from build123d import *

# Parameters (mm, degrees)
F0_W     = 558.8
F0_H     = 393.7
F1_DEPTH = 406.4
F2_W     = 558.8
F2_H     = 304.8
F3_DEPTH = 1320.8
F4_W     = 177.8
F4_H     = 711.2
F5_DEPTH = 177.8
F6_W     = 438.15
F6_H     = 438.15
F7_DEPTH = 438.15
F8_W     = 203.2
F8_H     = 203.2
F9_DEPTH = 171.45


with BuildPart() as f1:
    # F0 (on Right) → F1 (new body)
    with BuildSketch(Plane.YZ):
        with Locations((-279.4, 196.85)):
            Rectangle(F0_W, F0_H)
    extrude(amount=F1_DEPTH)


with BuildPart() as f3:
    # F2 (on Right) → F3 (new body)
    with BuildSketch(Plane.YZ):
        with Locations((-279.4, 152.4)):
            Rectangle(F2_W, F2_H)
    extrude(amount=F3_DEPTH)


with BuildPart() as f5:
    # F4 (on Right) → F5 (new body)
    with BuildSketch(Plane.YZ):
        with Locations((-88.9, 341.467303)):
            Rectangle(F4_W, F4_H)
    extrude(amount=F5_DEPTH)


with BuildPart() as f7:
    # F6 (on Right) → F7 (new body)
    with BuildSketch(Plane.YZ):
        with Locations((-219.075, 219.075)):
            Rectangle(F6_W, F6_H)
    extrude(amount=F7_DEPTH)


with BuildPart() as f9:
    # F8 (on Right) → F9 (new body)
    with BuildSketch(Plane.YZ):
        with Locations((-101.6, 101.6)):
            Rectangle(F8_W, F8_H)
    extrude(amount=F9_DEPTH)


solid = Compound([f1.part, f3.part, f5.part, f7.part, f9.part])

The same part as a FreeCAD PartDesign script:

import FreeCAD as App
import Part
import Sketcher

V = App.Vector
Q = App.Units.Quantity


def add_polygon(sketch, points):
    """Adds a closed chain of lines whose ends are joined by coincident constraints."""
    first, n = sketch.GeometryCount, len(points)
    for a, b in zip(points, points[1:] + points[:1]):
        sketch.addGeometry(Part.LineSegment(App.Vector(*a, 0), App.Vector(*b, 0)), False)
    for i in range(n):
        sketch.addConstraint(Sketcher.Constraint("Coincident", first + i, 2, first + (i + 1) % n, 1))

doc = App.newDocument("Part")
body = doc.addObject("PartDesign::Body", "Body")

# Sketch on YZ plane
sketch1 = body.newObject("Sketcher::SketchObject", "Sketch")
sketch1.AttachmentSupport = (doc.getObject("YZ_Plane"), [""])
sketch1.MapMode = "FlatFace"
add_polygon(sketch1, [(-558.8, 393.7), (-558.8, 0), (0, 0), (0, 393.7)])  # lines 0-3
sketch1.addConstraint([
    Sketcher.Constraint("Vertical", 0),
    Sketcher.Constraint("Horizontal", 1),
    Sketcher.Constraint("Vertical", 2),
    Sketcher.Constraint("Horizontal", 3),
    Sketcher.Constraint("Coincident", 1, 2, -1, 1),
    Sketcher.Constraint("DistanceX", 1, 1, 1, 2, Q("22 in")),
    Sketcher.Constraint("DistanceY", 0, 2, 0, 1, Q("15.5 in")),
])
pad1 = body.newObject("PartDesign::Pad", "Pad")
pad1.Profile = sketch1
pad1.Length = Q("16 in")
body2 = doc.addObject("PartDesign::Body", "Body001")

# Sketch on YZ plane
sketch2 = body2.newObject("Sketcher::SketchObject", "Sketch001")
sketch2.AttachmentSupport = (doc.getObject("YZ_Plane001"), [""])
sketch2.MapMode = "FlatFace"
add_polygon(sketch2, [(-558.8, 304.8), (-558.8, 0), (0, 0), (0, 304.8)])  # lines 0-3
sketch2.addConstraint([
    Sketcher.Constraint("Vertical", 0),
    Sketcher.Constraint("Horizontal", 1),
    Sketcher.Constraint("Vertical", 2),
    Sketcher.Constraint("Horizontal", 3),
    Sketcher.Constraint("Coincident", 1, 2, -1, 1),
    Sketcher.Constraint("DistanceX", 1, 1, 1, 2, Q("22 in")),
    Sketcher.Constraint("DistanceY", 0, 2, 0, 1, Q("12 in")),
])
pad2 = body2.newObject("PartDesign::Pad", "Pad001")
pad2.Profile = sketch2
pad2.Length = Q("52 in")
body3 = doc.addObject("PartDesign::Body", "Body002")

# Sketch on YZ plane
sketch3 = body3.newObject("Sketcher::SketchObject", "Sketch002")
sketch3.AttachmentSupport = (doc.getObject("YZ_Plane002"), [""])
sketch3.MapMode = "FlatFace"
add_polygon(sketch3, [(-177.8, 697.067303), (-177.8, -14.132697), (0, -14.132697), (0, 697.067303)])  # lines 0-3
sketch3.addConstraint([
    Sketcher.Constraint("Vertical", 0),
    Sketcher.Constraint("Horizontal", 1),
    Sketcher.Constraint("Vertical", 2),
    Sketcher.Constraint("Horizontal", 3),
    Sketcher.Constraint("PointOnObject", 1, 2, -2),
    Sketcher.Constraint("DistanceX", 1, 1, 1, 2, Q("7 in")),
    Sketcher.Constraint("DistanceY", 0, 2, 0, 1, Q("28 in")),
    Sketcher.Constraint("DistanceY", 0, 2, -1, 1, Q("14.132697 mm")),
])
pad3 = body3.newObject("PartDesign::Pad", "Pad002")
pad3.Profile = sketch3
pad3.Length = Q("7 in")
body4 = doc.addObject("PartDesign::Body", "Body003")

# Sketch on YZ plane
sketch4 = body4.newObject("Sketcher::SketchObject", "Sketch003")
sketch4.AttachmentSupport = (doc.getObject("YZ_Plane003"), [""])
sketch4.MapMode = "FlatFace"
add_polygon(sketch4, [(-438.15, 438.15), (-438.15, 0), (0, 0), (0, 438.15)])  # lines 0-3
sketch4.addConstraint([
    Sketcher.Constraint("Vertical", 0),
    Sketcher.Constraint("Horizontal", 1),
    Sketcher.Constraint("Vertical", 2),
    Sketcher.Constraint("Horizontal", 3),
    Sketcher.Constraint("Coincident", 1, 2, -1, 1),
    Sketcher.Constraint("Equal", 3, 0),
    Sketcher.Constraint("DistanceX", 1, 1, 1, 2, Q("17.25 in")),
])
pad4 = body4.newObject("PartDesign::Pad", "Pad003")
pad4.Profile = sketch4
pad4.Length = Q("17.25 in")
body5 = doc.addObject("PartDesign::Body", "Body004")

# Sketch on YZ plane
sketch5 = body5.newObject("Sketcher::SketchObject", "Sketch004")
sketch5.AttachmentSupport = (doc.getObject("YZ_Plane004"), [""])
sketch5.MapMode = "FlatFace"
add_polygon(sketch5, [(-203.2, 203.2), (-203.2, 0), (0, 0), (0, 203.2)])  # lines 0-3
sketch5.addConstraint([
    Sketcher.Constraint("Vertical", 0),
    Sketcher.Constraint("Horizontal", 1),
    Sketcher.Constraint("Vertical", 2),
    Sketcher.Constraint("Horizontal", 3),
    Sketcher.Constraint("Coincident", 1, 2, -1, 1),
    Sketcher.Constraint("Equal", 3, 0),
    Sketcher.Constraint("DistanceX", 1, 1, 1, 2, Q("8 in")),
])
pad5 = body5.newObject("PartDesign::Pad", "Pad004")
pad5.Profile = sketch5
pad5.Length = Q("6.75 in")

doc.recompute()
